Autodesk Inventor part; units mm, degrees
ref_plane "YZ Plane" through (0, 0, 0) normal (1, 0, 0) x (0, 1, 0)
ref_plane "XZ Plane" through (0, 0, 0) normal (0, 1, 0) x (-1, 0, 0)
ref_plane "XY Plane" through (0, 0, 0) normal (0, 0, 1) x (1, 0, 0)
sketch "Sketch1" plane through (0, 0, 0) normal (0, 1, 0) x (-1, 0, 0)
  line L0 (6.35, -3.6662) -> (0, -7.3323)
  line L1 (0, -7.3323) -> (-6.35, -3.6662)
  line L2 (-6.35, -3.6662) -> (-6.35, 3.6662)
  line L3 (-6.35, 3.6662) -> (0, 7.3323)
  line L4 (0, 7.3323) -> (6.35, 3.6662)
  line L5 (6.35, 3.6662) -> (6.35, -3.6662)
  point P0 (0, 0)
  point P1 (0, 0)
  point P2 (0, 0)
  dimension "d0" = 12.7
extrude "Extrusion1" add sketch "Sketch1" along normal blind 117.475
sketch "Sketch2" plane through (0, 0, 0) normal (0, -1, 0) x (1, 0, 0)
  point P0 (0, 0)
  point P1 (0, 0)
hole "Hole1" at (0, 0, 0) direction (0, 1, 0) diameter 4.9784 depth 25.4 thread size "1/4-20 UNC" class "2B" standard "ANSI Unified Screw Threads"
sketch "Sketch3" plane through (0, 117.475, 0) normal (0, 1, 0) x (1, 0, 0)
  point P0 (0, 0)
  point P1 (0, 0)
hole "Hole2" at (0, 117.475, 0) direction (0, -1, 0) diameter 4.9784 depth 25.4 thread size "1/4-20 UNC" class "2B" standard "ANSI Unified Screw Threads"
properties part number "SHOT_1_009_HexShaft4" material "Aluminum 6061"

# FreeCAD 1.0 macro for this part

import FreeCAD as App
import Part
import Sketcher

V = App.Vector
Q = App.Units.Quantity


def add_polygon(sketch, points):
    """Adds a closed chain of lines whose ends are joined by coincident constraints."""
    first, n = sketch.GeometryCount, len(points)
    for a, b in zip(points, points[1:] + points[:1]):
        sketch.addGeometry(Part.LineSegment(App.Vector(*a, 0), App.Vector(*b, 0)), False)
    for i in range(n):
        sketch.addConstraint(Sketcher.Constraint("Coincident", first + i, 2, first + (i + 1) % n, 1))

doc = App.newDocument("Part")
body = doc.addObject("PartDesign::Body", "Body")

# Sketch on XZ plane
sketch1 = body.newObject("Sketcher::SketchObject", "Sketch")
sketch1.AttachmentSupport = (doc.getObject("XZ_Plane"), [""])
sketch1.MapMode = "FlatFace"
add_polygon(sketch1, [(0, -7), (-6, -4), (-6, 4), (0, 7), (6, 4), (6, -4)])  # lines 0-5
sketch1.addConstraint([
    Sketcher.Constraint("Vertical", 1),
    Sketcher.Constraint("Vertical", 4),
    Sketcher.Constraint("Symmetric", 0, 2, 3, 2, -1, 1),
    Sketcher.Constraint("Symmetric", 2, 2, 5, 2, -1, 1),
    Sketcher.Constraint("PointOnObject", 2, 2, -2),
    Sketcher.Constraint("Parallel", 2, 5),
    Sketcher.Constraint("Horizontal", 1, 2, 3, 2),
    Sketcher.Constraint("DistanceX", 1, 2, 3, 2, Q("0.5 in")),
    Sketcher.Constraint("Angle", 0, Q("150.0005 deg")),
    Sketcher.Constraint("DistanceY", 0, 2, 2, 2, Q("0.433 in")),
])
pad1 = body.newObject("PartDesign::Pad", "Pad")
pad1.Profile = sketch1
pad1.Length = Q("4.625 in")
pad1.Reversed = True

# Sketch on XZ plane
sketch2 = body.newObject("Sketcher::SketchObject", "Sketch001")
sketch2.AttachmentSupport = (doc.getObject("XZ_Plane"), [""])
sketch2.MapMode = "FlatFace"
sketch2.addGeometry(Part.Circle(V(0, 0, 0), V(0, 0, 1), 2.5), False)
sketch2.addConstraint([
    Sketcher.Constraint("Coincident", 0, 3, -1, 1),
    Sketcher.Constraint("Diameter", 0, Q("0.196 in")),
])
doc.recompute()
hole = body.newObject("PartDesign::Hole", "Hole")
hole.Profile = sketch2
hole.ThreadType = "None"
hole.Diameter = Q("0.196 in")
hole.DepthType = "Dimension"
hole.Depth = Q("1 in")
hole.DrillPoint = "Flat"

# Sketch on XZ plane
sketch3 = body.newObject("Sketcher::SketchObject", "Sketch002")
sketch3.AttachmentSupport = (doc.getObject("XZ_Plane"), [""])
sketch3.MapMode = "FlatFace"
sketch3.AttachmentOffset = App.Placement(V(0, 0, -4.625 * 25.4), App.Rotation())
sketch3.addGeometry(Part.Circle(V(0, 0, 0), V(0, 0, 1), 2.5), False)
sketch3.addConstraint([
    Sketcher.Constraint("Coincident", 0, 3, -1, 1),
    Sketcher.Constraint("Diameter", 0, Q("0.196 in")),
])
doc.recompute()
hole2 = body.newObject("PartDesign::Hole", "Hole001")
hole2.Profile = sketch3
hole2.ThreadType = "None"
hole2.Diameter = Q("0.196 in")
hole2.DepthType = "Dimension"
hole2.Depth = Q("1 in")
hole2.DrillPoint = "Flat"
hole2.Reversed = True

doc.recompute()
